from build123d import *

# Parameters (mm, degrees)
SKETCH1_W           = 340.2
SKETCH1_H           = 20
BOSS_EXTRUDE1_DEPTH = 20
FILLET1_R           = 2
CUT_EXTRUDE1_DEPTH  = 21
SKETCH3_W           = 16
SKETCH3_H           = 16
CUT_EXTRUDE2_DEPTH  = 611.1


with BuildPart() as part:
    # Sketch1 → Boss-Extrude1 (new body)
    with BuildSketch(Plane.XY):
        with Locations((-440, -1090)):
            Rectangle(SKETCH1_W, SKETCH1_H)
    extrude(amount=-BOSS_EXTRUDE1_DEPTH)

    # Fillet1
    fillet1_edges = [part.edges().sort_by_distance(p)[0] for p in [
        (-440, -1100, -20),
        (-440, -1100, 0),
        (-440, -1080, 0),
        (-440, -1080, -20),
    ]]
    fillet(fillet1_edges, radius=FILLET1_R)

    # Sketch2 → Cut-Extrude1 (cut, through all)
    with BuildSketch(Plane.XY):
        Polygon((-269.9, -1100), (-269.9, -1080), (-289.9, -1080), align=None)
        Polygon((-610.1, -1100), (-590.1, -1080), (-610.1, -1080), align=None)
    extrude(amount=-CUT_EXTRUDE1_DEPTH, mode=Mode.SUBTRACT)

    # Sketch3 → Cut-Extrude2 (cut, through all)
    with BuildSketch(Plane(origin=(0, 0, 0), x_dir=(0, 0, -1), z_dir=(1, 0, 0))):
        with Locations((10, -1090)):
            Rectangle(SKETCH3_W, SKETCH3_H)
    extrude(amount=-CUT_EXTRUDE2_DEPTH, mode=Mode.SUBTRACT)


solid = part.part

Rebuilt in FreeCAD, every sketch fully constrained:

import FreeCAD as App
import Part
import Sketcher

V = App.Vector


def edges_at(feature, points):
    """Names of the edges that pass closest to the given points."""
    edges = feature.Shape.Edges
    near = lambda p: min(range(len(edges)), key=lambda i: edges[i].distToShape(Part.Vertex(*p))[0])
    return sorted({f"Edge{near(p) + 1}" for p in points})


def add_polygon(sketch, points):
    """Adds a closed chain of lines whose ends are joined by coincident constraints."""
    first, n = sketch.GeometryCount, len(points)
    for a, b in zip(points, points[1:] + points[:1]):
        sketch.addGeometry(Part.LineSegment(App.Vector(*a, 0), App.Vector(*b, 0)), False)
    for i in range(n):
        sketch.addConstraint(Sketcher.Constraint("Coincident", first + i, 2, first + (i + 1) % n, 1))

doc = App.newDocument("Part")
body = doc.addObject("PartDesign::Body", "Body")

# Sketch on XY plane
sketch1 = body.newObject("Sketcher::SketchObject", "Sketch")
sketch1.AttachmentSupport = (doc.getObject("XY_Plane"), [""])
sketch1.MapMode = "FlatFace"
add_polygon(sketch1, [(-610, -1080), (-610, -1100), (-270, -1100), (-270, -1080)])  # lines 0-3
sketch1.addConstraint([
    Sketcher.Constraint("Vertical", 0),
    Sketcher.Constraint("Horizontal", 1),
    Sketcher.Constraint("Vertical", 2),
    Sketcher.Constraint("Horizontal", 3),
    Sketcher.Constraint("DistanceY", 0, 2, 0, 1, 20.0),
    Sketcher.Constraint("DistanceX", 1, 1, 1, 2, 340.2),
    Sketcher.Constraint("DistanceY", 0, 2, -1, 1, 1100.0),
    Sketcher.Constraint("DistanceX", 0, 2, -1, 1, 610.1),
])
pad1 = body.newObject("PartDesign::Pad", "Pad")
pad1.Profile = sketch1
pad1.Length = 20
pad1.Reversed = True
doc.recompute()

fillet = body.newObject("PartDesign::Fillet", "Fillet")
fillet.Base = (pad1, edges_at(pad1, [
    (-440, -1100, -20),
    (-440, -1100, 0),
    (-440, -1080, 0),
    (-440, -1080, -20),
]))
fillet.Radius = 2

# Sketch on XY plane
sketch2 = body.newObject("Sketcher::SketchObject", "Sketch001")
sketch2.AttachmentSupport = (doc.getObject("XY_Plane"), [""])
sketch2.MapMode = "FlatFace"
add_polygon(sketch2, [(-270, -1100), (-270, -1080), (-290, -1080)])  # lines 0-2
add_polygon(sketch2, [(-610, -1100), (-590, -1080), (-610, -1080)])  # lines 3-5
sketch2.addConstraint([
    Sketcher.Constraint("Vertical", 0),
    Sketcher.Constraint("Horizontal", 1),
    Sketcher.Constraint("Horizontal", 4),
    Sketcher.Constraint("Vertical", 5),
    Sketcher.Constraint("Perpendicular", 2, 3),
    Sketcher.Constraint("Horizontal", 1, 2, 3, 2),
    Sketcher.Constraint("Horizontal", 2, 2, 5, 2),
    Sketcher.Constraint("Equal", 1, 4),
    Sketcher.Constraint("DistanceX", 1, 2, 1, 1, 20.0),
    Sketcher.Constraint("DistanceY", 0, 2, -1, 1, 1080.0),
    Sketcher.Constraint("DistanceX", 0, 2, -1, 1, 269.9),
    Sketcher.Constraint("DistanceX", 3, 2, -1, 1, 590.1),
])
pocket1 = body.newObject("PartDesign::Pocket", "Pocket")
pocket1.Profile = sketch2
pocket1.Type = "ThroughAll"

# Sketch on YZ plane
sketch3 = body.newObject("Sketcher::SketchObject", "Sketch002")
sketch3.AttachmentSupport = (doc.getObject("YZ_Plane"), [""])
sketch3.MapMode = "FlatFace"
add_polygon(sketch3, [(-1082, -2), (-1098, -2), (-1098, -18), (-1082, -18)])  # lines 0-3
sketch3.addConstraint([
    Sketcher.Constraint("Horizontal", 0),
    Sketcher.Constraint("Vertical", 1),
    Sketcher.Constraint("Horizontal", 2),
    Sketcher.Constraint("Vertical", 3),
    Sketcher.Constraint("Equal", 2, 1),
    Sketcher.Constraint("DistanceX", 0, 2, 0, 1, 16.0),
    Sketcher.Constraint("DistanceX", 0, 2, -1, 1, 1098.0),
    Sketcher.Constraint("DistanceY", 0, 2, -1, 1, 2.0),
])
pocket2 = body.newObject("PartDesign::Pocket", "Pocket001")
pocket2.Profile = sketch3
pocket2.Type = "ThroughAll"

doc.recompute()
